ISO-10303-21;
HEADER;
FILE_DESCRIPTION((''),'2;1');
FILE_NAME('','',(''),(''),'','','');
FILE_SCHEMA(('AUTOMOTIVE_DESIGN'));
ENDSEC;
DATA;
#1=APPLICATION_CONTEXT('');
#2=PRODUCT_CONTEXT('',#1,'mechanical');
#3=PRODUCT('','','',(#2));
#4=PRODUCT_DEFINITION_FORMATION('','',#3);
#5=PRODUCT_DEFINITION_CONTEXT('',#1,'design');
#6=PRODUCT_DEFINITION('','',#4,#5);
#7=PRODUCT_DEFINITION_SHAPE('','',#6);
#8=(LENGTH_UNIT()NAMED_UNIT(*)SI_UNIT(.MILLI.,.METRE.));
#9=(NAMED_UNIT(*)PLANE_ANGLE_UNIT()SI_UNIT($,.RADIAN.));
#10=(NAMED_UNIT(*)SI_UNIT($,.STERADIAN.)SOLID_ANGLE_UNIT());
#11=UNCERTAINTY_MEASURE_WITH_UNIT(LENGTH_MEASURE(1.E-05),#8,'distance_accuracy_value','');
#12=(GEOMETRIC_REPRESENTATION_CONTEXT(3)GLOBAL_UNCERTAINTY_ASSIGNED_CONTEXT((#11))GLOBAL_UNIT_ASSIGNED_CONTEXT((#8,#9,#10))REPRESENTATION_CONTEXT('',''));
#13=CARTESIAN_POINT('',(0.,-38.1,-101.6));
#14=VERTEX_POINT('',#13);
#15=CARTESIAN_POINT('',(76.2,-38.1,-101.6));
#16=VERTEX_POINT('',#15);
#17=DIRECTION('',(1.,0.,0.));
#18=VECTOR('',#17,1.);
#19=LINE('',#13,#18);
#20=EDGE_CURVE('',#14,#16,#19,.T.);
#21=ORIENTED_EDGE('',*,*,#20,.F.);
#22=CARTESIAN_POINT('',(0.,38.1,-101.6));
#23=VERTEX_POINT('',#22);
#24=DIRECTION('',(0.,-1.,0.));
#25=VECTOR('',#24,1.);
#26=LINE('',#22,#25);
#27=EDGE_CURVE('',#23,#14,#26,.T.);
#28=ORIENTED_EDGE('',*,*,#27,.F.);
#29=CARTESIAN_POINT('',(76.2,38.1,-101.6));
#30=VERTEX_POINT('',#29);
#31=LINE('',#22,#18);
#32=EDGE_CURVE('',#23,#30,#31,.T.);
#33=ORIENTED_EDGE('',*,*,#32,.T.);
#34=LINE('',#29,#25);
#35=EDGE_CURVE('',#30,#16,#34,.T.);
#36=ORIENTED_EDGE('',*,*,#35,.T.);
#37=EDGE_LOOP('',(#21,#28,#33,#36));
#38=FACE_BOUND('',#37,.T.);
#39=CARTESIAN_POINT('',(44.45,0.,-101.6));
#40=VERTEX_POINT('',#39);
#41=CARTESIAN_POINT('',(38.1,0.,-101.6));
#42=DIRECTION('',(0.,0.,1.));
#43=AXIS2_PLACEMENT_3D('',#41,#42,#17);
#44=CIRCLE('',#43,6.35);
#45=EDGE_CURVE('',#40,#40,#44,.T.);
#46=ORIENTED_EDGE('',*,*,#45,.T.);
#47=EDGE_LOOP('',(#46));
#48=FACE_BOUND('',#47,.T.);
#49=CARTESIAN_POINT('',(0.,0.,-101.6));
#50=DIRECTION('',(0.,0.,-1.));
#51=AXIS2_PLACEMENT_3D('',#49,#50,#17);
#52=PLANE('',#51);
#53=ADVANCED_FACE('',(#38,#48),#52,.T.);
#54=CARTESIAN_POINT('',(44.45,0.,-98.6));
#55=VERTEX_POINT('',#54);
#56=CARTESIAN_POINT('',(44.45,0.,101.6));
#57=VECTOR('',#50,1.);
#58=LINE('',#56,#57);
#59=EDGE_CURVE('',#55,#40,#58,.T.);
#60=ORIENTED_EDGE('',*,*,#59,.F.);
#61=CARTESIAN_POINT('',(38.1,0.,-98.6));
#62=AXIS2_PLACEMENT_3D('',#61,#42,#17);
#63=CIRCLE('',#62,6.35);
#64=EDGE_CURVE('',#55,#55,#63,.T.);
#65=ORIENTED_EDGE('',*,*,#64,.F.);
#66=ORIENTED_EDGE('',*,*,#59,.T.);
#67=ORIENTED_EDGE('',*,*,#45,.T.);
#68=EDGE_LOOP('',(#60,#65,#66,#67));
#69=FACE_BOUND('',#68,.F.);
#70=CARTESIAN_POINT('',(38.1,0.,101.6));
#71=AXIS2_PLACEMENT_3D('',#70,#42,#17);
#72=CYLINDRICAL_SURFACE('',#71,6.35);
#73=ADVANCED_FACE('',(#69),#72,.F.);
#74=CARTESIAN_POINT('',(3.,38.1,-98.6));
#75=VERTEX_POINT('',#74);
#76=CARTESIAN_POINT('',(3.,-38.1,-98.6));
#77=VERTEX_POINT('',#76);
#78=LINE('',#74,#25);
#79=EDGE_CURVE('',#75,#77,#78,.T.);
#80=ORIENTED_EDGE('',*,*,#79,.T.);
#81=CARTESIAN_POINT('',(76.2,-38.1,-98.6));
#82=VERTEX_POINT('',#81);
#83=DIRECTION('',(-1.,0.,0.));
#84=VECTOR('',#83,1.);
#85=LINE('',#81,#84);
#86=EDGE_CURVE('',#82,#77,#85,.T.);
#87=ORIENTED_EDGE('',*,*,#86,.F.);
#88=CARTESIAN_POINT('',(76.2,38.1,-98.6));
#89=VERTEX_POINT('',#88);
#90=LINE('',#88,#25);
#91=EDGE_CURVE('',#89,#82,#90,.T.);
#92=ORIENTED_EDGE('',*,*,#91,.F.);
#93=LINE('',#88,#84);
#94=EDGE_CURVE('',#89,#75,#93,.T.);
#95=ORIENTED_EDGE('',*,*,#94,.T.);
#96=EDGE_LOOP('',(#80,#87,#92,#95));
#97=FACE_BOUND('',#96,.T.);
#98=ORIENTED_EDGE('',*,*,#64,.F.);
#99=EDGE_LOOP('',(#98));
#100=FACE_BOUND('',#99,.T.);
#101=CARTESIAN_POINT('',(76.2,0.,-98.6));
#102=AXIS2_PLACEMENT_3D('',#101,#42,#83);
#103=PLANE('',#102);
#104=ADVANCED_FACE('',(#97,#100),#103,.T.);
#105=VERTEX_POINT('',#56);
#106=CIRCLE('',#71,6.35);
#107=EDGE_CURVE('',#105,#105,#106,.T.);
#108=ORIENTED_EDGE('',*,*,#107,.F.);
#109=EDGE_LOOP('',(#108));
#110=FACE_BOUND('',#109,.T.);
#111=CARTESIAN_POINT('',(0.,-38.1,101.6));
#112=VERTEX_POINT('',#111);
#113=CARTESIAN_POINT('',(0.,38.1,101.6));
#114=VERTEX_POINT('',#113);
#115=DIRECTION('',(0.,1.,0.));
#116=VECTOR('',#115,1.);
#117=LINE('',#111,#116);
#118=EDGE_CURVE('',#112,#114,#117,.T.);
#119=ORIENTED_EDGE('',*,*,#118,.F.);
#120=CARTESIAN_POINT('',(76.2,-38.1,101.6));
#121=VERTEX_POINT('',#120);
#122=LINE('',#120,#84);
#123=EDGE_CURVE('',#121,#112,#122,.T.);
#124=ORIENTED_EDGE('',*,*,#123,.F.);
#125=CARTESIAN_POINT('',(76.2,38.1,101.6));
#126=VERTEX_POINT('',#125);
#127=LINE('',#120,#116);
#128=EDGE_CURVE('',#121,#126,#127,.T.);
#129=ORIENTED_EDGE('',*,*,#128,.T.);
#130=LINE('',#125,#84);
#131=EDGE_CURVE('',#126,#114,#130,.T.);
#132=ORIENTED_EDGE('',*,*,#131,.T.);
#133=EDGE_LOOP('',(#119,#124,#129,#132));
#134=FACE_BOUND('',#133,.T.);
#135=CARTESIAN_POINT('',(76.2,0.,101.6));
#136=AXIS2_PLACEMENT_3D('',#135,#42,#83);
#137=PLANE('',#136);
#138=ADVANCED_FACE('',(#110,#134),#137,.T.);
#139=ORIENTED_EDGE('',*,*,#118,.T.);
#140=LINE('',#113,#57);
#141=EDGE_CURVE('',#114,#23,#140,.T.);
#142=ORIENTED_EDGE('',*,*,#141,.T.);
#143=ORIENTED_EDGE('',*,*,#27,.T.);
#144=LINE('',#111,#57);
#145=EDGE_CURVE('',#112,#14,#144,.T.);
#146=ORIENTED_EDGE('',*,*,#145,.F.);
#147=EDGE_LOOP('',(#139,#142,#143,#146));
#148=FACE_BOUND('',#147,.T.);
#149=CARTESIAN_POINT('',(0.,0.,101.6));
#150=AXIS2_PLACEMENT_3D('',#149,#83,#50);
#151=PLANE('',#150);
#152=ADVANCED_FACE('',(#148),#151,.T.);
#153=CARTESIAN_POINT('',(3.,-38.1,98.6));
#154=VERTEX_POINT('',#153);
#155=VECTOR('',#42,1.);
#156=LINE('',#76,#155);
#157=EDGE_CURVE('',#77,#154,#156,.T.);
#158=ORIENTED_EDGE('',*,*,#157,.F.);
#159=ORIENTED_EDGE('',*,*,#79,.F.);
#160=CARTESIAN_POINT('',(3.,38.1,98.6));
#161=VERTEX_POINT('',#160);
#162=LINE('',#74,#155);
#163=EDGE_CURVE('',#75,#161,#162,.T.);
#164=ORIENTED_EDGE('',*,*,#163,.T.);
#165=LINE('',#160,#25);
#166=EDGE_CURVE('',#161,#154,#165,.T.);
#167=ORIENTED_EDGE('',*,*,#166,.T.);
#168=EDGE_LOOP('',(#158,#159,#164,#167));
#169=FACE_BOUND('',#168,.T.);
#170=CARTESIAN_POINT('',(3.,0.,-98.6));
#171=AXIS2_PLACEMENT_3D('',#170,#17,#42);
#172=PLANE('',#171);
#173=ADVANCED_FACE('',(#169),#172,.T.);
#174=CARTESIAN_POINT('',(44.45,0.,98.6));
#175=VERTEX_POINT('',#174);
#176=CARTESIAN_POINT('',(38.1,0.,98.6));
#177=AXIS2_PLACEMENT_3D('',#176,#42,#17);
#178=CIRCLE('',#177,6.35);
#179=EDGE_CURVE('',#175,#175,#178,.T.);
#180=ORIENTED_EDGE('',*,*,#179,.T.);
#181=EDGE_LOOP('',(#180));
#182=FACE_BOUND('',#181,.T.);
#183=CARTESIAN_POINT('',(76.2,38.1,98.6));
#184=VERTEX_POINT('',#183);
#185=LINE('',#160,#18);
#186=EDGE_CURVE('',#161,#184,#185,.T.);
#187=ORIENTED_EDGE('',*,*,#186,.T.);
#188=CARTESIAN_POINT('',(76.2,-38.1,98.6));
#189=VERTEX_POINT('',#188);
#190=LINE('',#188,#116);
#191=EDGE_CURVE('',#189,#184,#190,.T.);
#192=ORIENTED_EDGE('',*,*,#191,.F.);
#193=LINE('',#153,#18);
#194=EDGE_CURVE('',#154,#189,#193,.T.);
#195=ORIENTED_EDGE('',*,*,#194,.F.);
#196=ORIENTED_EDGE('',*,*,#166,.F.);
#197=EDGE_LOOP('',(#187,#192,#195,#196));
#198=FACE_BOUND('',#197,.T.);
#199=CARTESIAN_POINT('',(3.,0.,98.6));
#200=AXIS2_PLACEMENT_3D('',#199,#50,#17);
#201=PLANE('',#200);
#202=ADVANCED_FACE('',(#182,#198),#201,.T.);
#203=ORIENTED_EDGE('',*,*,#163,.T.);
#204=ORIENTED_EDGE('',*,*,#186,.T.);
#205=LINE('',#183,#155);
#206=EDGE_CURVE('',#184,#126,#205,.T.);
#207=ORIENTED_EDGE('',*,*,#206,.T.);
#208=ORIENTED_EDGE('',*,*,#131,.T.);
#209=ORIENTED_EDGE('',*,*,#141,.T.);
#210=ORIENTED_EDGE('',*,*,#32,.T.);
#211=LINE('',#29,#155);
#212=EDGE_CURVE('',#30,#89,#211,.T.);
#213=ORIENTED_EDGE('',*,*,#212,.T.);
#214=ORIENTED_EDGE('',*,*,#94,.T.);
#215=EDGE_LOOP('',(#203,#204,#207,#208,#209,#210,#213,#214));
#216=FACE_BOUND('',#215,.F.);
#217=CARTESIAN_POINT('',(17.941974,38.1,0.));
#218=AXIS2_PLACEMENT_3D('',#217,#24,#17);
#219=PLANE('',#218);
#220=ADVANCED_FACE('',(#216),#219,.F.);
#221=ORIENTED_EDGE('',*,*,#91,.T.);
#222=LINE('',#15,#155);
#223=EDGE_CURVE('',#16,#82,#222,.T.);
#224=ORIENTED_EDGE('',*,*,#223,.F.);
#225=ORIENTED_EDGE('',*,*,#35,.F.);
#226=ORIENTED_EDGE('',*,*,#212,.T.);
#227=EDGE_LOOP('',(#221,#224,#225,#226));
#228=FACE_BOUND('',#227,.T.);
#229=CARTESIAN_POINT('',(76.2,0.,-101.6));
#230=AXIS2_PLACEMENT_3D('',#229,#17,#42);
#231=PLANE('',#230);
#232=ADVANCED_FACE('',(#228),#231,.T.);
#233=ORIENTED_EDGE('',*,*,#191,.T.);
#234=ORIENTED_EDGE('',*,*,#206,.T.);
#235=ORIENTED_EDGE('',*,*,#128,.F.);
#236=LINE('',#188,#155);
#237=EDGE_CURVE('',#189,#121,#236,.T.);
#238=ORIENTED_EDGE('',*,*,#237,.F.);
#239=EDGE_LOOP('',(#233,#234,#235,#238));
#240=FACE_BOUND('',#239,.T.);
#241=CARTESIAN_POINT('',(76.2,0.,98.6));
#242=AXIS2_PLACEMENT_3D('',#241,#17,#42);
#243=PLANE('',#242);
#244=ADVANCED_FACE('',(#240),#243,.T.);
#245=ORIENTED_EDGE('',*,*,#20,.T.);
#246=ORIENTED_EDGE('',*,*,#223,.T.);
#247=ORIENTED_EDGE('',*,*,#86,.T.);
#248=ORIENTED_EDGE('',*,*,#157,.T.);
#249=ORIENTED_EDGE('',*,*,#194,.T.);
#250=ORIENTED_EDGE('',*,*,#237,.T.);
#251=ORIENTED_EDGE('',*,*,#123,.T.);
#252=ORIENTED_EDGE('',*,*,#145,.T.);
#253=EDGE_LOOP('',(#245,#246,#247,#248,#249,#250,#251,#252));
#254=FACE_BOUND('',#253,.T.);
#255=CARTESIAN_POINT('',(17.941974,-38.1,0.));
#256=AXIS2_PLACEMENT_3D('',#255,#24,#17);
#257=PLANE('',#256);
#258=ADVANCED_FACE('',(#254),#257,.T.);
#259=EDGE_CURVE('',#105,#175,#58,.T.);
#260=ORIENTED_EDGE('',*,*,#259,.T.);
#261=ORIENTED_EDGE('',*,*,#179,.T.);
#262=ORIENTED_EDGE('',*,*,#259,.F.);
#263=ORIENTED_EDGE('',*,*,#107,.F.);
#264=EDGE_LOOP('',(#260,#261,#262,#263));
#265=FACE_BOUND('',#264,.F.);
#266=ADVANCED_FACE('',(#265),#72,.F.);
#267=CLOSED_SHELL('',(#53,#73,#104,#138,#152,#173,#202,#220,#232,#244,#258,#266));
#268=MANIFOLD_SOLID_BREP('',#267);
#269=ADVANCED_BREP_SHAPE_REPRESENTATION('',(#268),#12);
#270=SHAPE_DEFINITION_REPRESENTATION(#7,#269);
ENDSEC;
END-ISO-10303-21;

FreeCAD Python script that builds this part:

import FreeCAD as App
import Part
import Sketcher

V = App.Vector
Q = App.Units.Quantity

doc = App.newDocument("Part")
body = doc.addObject("PartDesign::Body", "Body")

# Sketch on XZ plane
sketch1 = body.newObject("Sketcher::SketchObject", "Sketch")
sketch1.AttachmentSupport = (doc.getObject("XZ_Plane"), [""])
sketch1.MapMode = "FlatFace"
sketch1.addGeometry([
    Part.LineSegment(V(0, 101.6, 0), V(0, -101.6, 0)),  # 0
    Part.LineSegment(V(0, -101.6, 0), V(76.2, -101.6, 0)),  # 1
    Part.LineSegment(V(76.2, -101.6, 0), V(76.2, -98.6, 0)),  # 2
    Part.LineSegment(V(76.2, -98.6, 0), V(3, -98.6, 0)),  # 3
    Part.LineSegment(V(3, -98.6, 0), V(3, 98.6, 0)),  # 4
    Part.LineSegment(V(3, 98.6, 0), V(76.2, 98.6, 0)),  # 5
    Part.LineSegment(V(76.2, 98.6, 0), V(76.2, 101.6, 0)),  # 6
    Part.LineSegment(V(76.2, 101.6, 0), V(0, 101.6, 0)),  # 7
], False)
sketch1.addConstraint([
    Sketcher.Constraint("Coincident", 0, 2, 1, 1),
    Sketcher.Constraint("Coincident", 1, 2, 2, 1),
    Sketcher.Constraint("Coincident", 2, 2, 3, 1),
    Sketcher.Constraint("Coincident", 3, 2, 4, 1),
    Sketcher.Constraint("Coincident", 4, 2, 5, 1),
    Sketcher.Constraint("Coincident", 5, 2, 6, 1),
    Sketcher.Constraint("Coincident", 6, 2, 7, 1),
    Sketcher.Constraint("Coincident", 7, 2, 0, 1),
    Sketcher.Constraint("Vertical", 0),
    Sketcher.Constraint("Horizontal", 1),
    Sketcher.Constraint("Vertical", 2),
    Sketcher.Constraint("Horizontal", 3),
    Sketcher.Constraint("Vertical", 4),
    Sketcher.Constraint("Horizontal", 5),
    Sketcher.Constraint("Vertical", 6),
    Sketcher.Constraint("Horizontal", 7),
    Sketcher.Constraint("Symmetric", 0, 2, 7, 2, -1, 1),
    Sketcher.Constraint("Symmetric", 2, 2, 5, 2, -1),
    Sketcher.Constraint("DistanceX", 1, 1, 1, 2, Q("3 in")),
    Sketcher.Constraint("DistanceY", 0, 2, 0, 1, Q("8 in")),
    Sketcher.Constraint("DistanceX", 3, 2, 3, 1, 73.2),
    Sketcher.Constraint("DistanceY", 2, 1, 2, 2, 3.0),
])
pad1 = body.newObject("PartDesign::Pad", "Pad")
pad1.Profile = sketch1
pad1.Length = Q("3 in")
pad1.Midplane = True

# Sketch on XY plane
sketch2 = body.newObject("Sketcher::SketchObject", "Sketch001")
sketch2.AttachmentSupport = (doc.getObject("XY_Plane"), [""])
sketch2.MapMode = "FlatFace"
sketch2.AttachmentOffset = App.Placement(V(0, 0, 4 * 25.4), App.Rotation())
sketch2.addGeometry(Part.Circle(V(38, 0, 0), V(0, 0, 1), 6), False)
sketch2.addConstraint([
    Sketcher.Constraint("PointOnObject", 0, 3, -1),
    Sketcher.Constraint("Diameter", 0, Q("0.5 in")),
    Sketcher.Constraint("DistanceX", -1, 1, 0, 3, Q("1.5 in")),
])
pocket1 = body.newObject("PartDesign::Pocket", "Pocket")
pocket1.Profile = sketch2
pocket1.Length = 286.870986

doc.recompute()
